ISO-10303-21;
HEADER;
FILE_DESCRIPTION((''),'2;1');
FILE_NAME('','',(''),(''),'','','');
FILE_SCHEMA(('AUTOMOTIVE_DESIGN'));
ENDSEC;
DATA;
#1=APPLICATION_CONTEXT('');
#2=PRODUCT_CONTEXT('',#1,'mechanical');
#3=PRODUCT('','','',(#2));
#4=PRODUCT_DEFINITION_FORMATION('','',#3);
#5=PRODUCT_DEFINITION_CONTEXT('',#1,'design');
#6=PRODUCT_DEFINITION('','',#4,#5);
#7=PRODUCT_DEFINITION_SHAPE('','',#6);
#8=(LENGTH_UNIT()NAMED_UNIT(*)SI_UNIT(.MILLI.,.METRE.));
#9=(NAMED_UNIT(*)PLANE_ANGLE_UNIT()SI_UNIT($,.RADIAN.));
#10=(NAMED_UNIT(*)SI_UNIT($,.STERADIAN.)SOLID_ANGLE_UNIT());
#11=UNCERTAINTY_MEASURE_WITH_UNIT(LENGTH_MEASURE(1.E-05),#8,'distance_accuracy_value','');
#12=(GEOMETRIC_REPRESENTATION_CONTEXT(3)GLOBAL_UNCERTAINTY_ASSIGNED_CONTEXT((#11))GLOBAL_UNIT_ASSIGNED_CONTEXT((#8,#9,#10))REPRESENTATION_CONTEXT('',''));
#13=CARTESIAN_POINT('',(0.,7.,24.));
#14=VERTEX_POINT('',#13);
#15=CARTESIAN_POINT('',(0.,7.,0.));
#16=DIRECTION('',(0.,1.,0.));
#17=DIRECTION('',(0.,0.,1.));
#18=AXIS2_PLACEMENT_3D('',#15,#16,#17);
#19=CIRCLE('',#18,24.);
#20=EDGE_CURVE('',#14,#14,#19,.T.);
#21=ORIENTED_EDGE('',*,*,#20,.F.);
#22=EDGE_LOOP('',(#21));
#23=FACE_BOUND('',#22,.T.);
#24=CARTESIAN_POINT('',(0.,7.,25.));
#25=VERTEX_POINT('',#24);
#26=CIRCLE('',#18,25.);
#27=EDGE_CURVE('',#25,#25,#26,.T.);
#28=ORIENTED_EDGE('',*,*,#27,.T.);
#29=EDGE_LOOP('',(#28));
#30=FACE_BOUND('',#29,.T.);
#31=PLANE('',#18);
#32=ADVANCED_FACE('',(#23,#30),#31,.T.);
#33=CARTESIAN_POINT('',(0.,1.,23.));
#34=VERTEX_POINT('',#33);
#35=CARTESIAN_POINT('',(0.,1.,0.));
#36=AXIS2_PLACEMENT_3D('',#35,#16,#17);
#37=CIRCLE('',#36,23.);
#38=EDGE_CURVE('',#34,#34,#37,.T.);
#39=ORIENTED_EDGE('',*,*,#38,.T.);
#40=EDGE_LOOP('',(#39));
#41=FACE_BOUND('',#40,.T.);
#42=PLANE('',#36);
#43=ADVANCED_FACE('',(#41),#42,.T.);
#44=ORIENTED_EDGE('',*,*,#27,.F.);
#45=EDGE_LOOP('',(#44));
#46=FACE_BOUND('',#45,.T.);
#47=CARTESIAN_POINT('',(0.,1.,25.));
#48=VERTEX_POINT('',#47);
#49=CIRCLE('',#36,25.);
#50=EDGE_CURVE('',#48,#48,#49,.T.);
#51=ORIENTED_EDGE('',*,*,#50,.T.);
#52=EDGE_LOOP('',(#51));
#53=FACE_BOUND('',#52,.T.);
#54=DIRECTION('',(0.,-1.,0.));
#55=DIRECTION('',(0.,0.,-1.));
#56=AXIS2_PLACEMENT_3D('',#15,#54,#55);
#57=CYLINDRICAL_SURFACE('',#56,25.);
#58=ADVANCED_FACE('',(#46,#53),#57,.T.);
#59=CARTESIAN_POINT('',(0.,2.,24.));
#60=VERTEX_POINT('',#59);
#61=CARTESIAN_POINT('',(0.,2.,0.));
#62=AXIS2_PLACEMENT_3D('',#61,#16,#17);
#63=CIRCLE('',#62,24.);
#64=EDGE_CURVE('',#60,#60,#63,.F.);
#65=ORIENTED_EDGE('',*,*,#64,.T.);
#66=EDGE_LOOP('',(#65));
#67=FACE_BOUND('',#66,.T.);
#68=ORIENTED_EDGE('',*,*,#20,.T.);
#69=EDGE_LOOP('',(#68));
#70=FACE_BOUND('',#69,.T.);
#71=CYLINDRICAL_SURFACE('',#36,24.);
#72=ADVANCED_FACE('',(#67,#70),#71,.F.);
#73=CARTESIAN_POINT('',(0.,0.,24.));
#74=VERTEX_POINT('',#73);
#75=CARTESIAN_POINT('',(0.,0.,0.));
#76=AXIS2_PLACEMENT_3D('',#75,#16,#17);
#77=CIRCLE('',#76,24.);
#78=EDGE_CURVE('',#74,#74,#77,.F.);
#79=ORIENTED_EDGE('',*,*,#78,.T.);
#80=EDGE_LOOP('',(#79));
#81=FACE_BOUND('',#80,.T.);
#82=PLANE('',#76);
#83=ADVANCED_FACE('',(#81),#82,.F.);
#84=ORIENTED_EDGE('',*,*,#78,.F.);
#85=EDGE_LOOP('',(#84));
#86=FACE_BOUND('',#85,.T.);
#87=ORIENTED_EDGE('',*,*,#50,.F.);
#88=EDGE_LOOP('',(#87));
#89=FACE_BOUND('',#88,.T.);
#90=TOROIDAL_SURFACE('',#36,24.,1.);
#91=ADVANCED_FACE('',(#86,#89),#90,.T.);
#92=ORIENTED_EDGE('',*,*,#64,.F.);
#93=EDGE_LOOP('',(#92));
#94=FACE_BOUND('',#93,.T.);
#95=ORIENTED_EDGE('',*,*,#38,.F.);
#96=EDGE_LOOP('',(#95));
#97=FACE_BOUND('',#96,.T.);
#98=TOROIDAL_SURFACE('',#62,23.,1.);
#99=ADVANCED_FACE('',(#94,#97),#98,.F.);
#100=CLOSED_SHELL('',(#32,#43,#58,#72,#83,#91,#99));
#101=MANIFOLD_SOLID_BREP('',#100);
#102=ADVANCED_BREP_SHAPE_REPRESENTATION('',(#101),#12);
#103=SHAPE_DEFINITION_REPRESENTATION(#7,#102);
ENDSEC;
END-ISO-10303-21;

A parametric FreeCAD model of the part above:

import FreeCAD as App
import Part
import Sketcher
from FreeCAD import Vector


def edges_at(feature, points):
    """Names of the edges that pass closest to the given points."""
    edges = feature.Shape.Edges
    near = lambda p: min(range(len(edges)), key=lambda i: edges[i].distToShape(Part.Vertex(*p))[0])
    return sorted({f"Edge{near(p) + 1}" for p in points})

doc = App.newDocument("Part")
body = doc.addObject("PartDesign::Body", "Body")

# Sketch on XZ plane
sketch1 = body.newObject("Sketcher::SketchObject", "Sketch")
sketch1.AttachmentSupport = (doc.getObject("XZ_Plane"), [""])
sketch1.MapMode = "FlatFace"
sketch1.addGeometry(Part.Circle(Vector(0, 0, 0), Vector(0, 0, 1), 25), False)
sketch1.addConstraint([
    Sketcher.Constraint("Coincident", 0, 3, -1, 1),
    Sketcher.Constraint("Diameter", 0, 50.0),
])
pad1 = body.newObject("PartDesign::Pad", "Pad")
pad1.Profile = sketch1
pad1.Length = 7
pad1.Reversed = True

# Sketch on XZ plane
sketch2 = body.newObject("Sketcher::SketchObject", "Sketch001")
sketch2.AttachmentSupport = (doc.getObject("XZ_Plane"), [""])
sketch2.MapMode = "FlatFace"
sketch2.AttachmentOffset = App.Placement(Vector(0, 0, -7), App.Rotation())
sketch2.addGeometry(Part.Circle(Vector(0, 0, 0), Vector(0, 0, 1), 24), False)
sketch2.addConstraint([
    Sketcher.Constraint("Coincident", 0, 3, -1, 1),
    Sketcher.Constraint("Diameter", 0, 48.0),
])
pocket1 = body.newObject("PartDesign::Pocket", "Pocket")
pocket1.Profile = sketch2
pocket1.Length = 6
pocket1.Reversed = True
doc.recompute()

fillet = body.newObject("PartDesign::Fillet", "Fillet")
fillet.Base = (pocket1, edges_at(pocket1, [(-25, 0, 0), (-24, 1, 0)]))
fillet.Radius = 1

doc.recompute()
